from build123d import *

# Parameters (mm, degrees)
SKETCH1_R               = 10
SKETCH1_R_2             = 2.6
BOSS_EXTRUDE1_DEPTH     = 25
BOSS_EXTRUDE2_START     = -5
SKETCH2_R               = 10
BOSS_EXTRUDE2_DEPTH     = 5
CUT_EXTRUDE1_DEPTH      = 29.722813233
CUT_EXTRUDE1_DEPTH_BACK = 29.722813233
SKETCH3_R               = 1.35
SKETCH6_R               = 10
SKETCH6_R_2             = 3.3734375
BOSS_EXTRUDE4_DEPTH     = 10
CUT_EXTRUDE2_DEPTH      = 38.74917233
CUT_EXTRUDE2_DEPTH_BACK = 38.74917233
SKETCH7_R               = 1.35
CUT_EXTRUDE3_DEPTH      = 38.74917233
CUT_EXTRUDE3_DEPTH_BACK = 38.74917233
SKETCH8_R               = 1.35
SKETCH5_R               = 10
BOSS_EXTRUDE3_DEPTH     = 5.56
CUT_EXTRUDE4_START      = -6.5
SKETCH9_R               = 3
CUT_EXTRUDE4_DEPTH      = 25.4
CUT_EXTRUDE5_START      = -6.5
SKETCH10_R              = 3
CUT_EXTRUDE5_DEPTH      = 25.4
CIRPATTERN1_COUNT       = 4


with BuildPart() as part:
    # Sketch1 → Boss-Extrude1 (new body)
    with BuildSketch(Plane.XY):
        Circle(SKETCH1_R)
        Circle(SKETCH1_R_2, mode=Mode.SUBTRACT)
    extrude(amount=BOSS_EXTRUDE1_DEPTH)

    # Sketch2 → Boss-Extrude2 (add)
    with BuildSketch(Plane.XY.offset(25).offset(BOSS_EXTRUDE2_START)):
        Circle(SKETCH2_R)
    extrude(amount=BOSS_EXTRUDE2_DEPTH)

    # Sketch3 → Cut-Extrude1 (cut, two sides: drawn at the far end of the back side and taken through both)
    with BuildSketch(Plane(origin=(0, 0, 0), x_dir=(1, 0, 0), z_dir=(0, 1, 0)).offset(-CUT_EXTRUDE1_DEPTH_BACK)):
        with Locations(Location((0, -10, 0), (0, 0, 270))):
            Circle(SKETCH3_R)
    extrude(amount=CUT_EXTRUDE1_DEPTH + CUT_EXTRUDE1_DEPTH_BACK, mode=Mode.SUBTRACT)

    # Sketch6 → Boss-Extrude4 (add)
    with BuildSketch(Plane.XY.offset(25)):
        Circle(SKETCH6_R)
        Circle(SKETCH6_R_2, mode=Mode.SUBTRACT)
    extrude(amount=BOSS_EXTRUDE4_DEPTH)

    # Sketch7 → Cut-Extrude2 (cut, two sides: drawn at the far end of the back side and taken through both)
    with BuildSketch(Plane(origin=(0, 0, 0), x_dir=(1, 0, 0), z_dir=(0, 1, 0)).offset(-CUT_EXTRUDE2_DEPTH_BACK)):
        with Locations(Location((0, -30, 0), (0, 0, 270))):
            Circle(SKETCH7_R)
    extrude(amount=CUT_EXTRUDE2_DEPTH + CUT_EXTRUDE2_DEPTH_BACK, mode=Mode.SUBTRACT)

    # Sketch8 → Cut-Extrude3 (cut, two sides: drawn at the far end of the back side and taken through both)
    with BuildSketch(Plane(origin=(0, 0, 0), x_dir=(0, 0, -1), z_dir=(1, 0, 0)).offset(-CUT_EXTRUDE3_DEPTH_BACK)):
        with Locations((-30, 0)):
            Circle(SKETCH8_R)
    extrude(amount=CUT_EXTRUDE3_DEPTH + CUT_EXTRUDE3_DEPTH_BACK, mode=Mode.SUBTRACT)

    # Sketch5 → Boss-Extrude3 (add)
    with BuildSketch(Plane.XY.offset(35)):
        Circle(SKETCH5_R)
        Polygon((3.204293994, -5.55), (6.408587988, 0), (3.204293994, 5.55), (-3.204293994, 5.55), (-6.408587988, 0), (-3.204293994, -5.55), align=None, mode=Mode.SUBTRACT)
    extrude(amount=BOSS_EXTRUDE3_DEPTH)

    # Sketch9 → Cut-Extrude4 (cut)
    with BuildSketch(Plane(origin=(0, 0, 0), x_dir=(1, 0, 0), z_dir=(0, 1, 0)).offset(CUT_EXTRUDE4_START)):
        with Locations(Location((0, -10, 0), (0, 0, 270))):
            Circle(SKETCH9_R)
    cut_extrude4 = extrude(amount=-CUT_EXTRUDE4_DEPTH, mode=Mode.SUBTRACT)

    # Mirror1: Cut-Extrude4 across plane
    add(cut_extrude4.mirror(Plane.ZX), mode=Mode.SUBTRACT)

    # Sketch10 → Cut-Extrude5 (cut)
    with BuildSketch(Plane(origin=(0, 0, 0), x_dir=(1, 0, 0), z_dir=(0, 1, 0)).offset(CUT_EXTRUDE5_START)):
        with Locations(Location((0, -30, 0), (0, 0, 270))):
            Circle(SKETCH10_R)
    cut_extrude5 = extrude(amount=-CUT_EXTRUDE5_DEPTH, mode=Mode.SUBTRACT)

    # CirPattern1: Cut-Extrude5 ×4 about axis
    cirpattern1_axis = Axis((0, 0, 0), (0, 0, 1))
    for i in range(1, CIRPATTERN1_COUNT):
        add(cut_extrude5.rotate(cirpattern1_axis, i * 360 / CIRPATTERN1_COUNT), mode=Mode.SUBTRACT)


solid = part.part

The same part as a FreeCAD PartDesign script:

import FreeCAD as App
import Part
import Sketcher
Q = App.Units.Quantity


def add_polygon(sketch, points):
    """Adds a closed chain of lines whose ends are joined by coincident constraints."""
    first, n = sketch.GeometryCount, len(points)
    for a, b in zip(points, points[1:] + points[:1]):
        sketch.addGeometry(Part.LineSegment(App.Vector(*a, 0), App.Vector(*b, 0)), False)
    for i in range(n):
        sketch.addConstraint(Sketcher.Constraint("Coincident", first + i, 2, first + (i + 1) % n, 1))

doc = App.newDocument("Part")
body = doc.addObject("PartDesign::Body", "Body")

sketch1 = body.newObject("Sketcher::SketchObject", "Sketch")
sketch1.AttachmentSupport = (doc.getObject("XY_Plane"), [""])
sketch1.MapMode = "FlatFace"
sketch1.addGeometry([
    Part.Circle(App.Vector(0, 0, 0), App.Vector(0, 0, 1), 10),
    Part.Circle(App.Vector(0, 0, 0), App.Vector(0, 0, 1), 2.6),
], False)
sketch1.addConstraint([
    Sketcher.Constraint("Coincident", 0, 3, -1, 1),
    Sketcher.Constraint("Coincident", 1, 3, -1, 1),
    Sketcher.Constraint("Diameter", 0, Q("20 mm")),
    Sketcher.Constraint("Diameter", 1, Q("5.2 mm")),
])
pad1 = body.newObject("PartDesign::Pad", "Pad")
pad1.Profile = sketch1
pad1.Length = 25

sketch2 = body.newObject("Sketcher::SketchObject", "Sketch001")
sketch2.AttachmentSupport = (doc.getObject("XY_Plane"), [""])
sketch2.MapMode = "FlatFace"
sketch2.AttachmentOffset = App.Placement(App.Vector(0, 0, 20), App.Rotation())
sketch2.addGeometry(Part.Circle(App.Vector(0, 0, 0), App.Vector(0, 0, 1), 10), False)
sketch2.addConstraint([
    Sketcher.Constraint("Coincident", 0, 3, -1, 1),
    Sketcher.Constraint("Diameter", 0, Q("20 mm")),
])
pad2 = body.newObject("PartDesign::Pad", "Pad001")
pad2.Profile = sketch2
pad2.Length = 5

sketch3 = body.newObject("Sketcher::SketchObject", "Sketch002")
sketch3.AttachmentSupport = (doc.getObject("XZ_Plane"), [""])
sketch3.MapMode = "FlatFace"
sketch3.addGeometry(Part.Circle(App.Vector(0, 10, 0), App.Vector(0, 0, 1), 1.4), False)
sketch3.addConstraint([
    Sketcher.Constraint("PointOnObject", 0, 3, -2),
    Sketcher.Constraint("Diameter", 0, Q("2.7 mm")),
    Sketcher.Constraint("DistanceY", -1, 1, 0, 3, Q("10 mm")),
])
pocket1 = body.newObject("PartDesign::Pocket", "Pocket")
pocket1.Profile = sketch3
pocket1.Type = "ThroughAll"
pocket1.Midplane = True

sketch4 = body.newObject("Sketcher::SketchObject", "Sketch003")
sketch4.AttachmentSupport = (doc.getObject("XY_Plane"), [""])
sketch4.MapMode = "FlatFace"
sketch4.AttachmentOffset = App.Placement(App.Vector(0, 0, 25), App.Rotation())
sketch4.addGeometry([
    Part.Circle(App.Vector(0, 0, 0), App.Vector(0, 0, 1), 10),
    Part.Circle(App.Vector(0, 0, 0), App.Vector(0, 0, 1), 3.4),
], False)
sketch4.addConstraint([
    Sketcher.Constraint("Coincident", 0, 3, -1, 1),
    Sketcher.Constraint("Coincident", 1, 3, -1, 1),
    Sketcher.Constraint("Diameter", 0, Q("20 mm")),
    Sketcher.Constraint("Diameter", 1, Q("6.746875 mm")),
])
pad3 = body.newObject("PartDesign::Pad", "Pad002")
pad3.Profile = sketch4
pad3.Length = 10

sketch5 = body.newObject("Sketcher::SketchObject", "Sketch004")
sketch5.AttachmentSupport = (doc.getObject("XZ_Plane"), [""])
sketch5.MapMode = "FlatFace"
sketch5.addGeometry(Part.Circle(App.Vector(0, 30, 0), App.Vector(0, 0, 1), 1.4), False)
sketch5.addConstraint([
    Sketcher.Constraint("PointOnObject", 0, 3, -2),
    Sketcher.Constraint("Diameter", 0, Q("2.7 mm")),
    Sketcher.Constraint("DistanceY", -1, 1, 0, 3, Q("30 mm")),
])
pocket2 = body.newObject("PartDesign::Pocket", "Pocket001")
pocket2.Profile = sketch5
pocket2.Type = "ThroughAll"
pocket2.Midplane = True

sketch6 = body.newObject("Sketcher::SketchObject", "Sketch005")
sketch6.AttachmentSupport = (doc.getObject("YZ_Plane"), [""])
sketch6.MapMode = "FlatFace"
sketch6.addGeometry(Part.Circle(App.Vector(0, 30, 0), App.Vector(0, 0, 1), 1.4), False)
sketch6.addConstraint([
    Sketcher.Constraint("PointOnObject", 0, 3, -2),
    Sketcher.Constraint("Diameter", 0, Q("2.7 mm")),
    Sketcher.Constraint("DistanceY", -1, 1, 0, 3, Q("30 mm")),
])
pocket3 = body.newObject("PartDesign::Pocket", "Pocket002")
pocket3.Profile = sketch6
pocket3.Type = "ThroughAll"
pocket3.Midplane = True

sketch7 = body.newObject("Sketcher::SketchObject", "Sketch006")
sketch7.AttachmentSupport = (doc.getObject("XY_Plane"), [""])
sketch7.MapMode = "FlatFace"
sketch7.AttachmentOffset = App.Placement(App.Vector(0, 0, 35), App.Rotation())
sketch7.addGeometry(Part.Circle(App.Vector(0, 0, 0), App.Vector(0, 0, 1), 10), False)
add_polygon(sketch7, [(6, 0), (3, -6), (-3, -6), (-6, 0), (-3, 6), (3, 6)])
sketch7.addConstraint([
    Sketcher.Constraint("Horizontal", 2),
    Sketcher.Constraint("Horizontal", 5),
    Sketcher.Constraint("Coincident", 0, 3, -1, 1),
    Sketcher.Constraint("Symmetric", 1, 2, 4, 2, -1, 1),
    Sketcher.Constraint("Symmetric", 3, 2, 6, 2, -1, 1),
    Sketcher.Constraint("PointOnObject", 3, 2, -1),
    Sketcher.Constraint("Parallel", 3, 6),
    Sketcher.Constraint("Vertical", 2, 2, 4, 2),
    Sketcher.Constraint("Diameter", 0, Q("20 mm")),
    Sketcher.Constraint("Angle", 1, Q("-120 deg")),
    Sketcher.Constraint("DistanceY", 2, 2, 4, 2, Q("11.1 mm")),
    Sketcher.Constraint("DistanceX", 2, 2, 2, 1, Q("6.408588 mm")),
])
pad4 = body.newObject("PartDesign::Pad", "Pad003")
pad4.Profile = sketch7
pad4.Length = 5.56

sketch8 = body.newObject("Sketcher::SketchObject", "Sketch007")
sketch8.AttachmentSupport = (doc.getObject("XZ_Plane"), [""])
sketch8.MapMode = "FlatFace"
sketch8.AttachmentOffset = App.Placement(App.Vector(0, 0, 6.5), App.Rotation())
sketch8.addGeometry(Part.Circle(App.Vector(0, 10, 0), App.Vector(0, 0, 1), 3), False)
sketch8.addConstraint([
    Sketcher.Constraint("PointOnObject", 0, 3, -2),
    Sketcher.Constraint("Diameter", 0, Q("6 mm")),
    Sketcher.Constraint("DistanceY", -1, 1, 0, 3, Q("10 mm")),
])
pocket4 = body.newObject("PartDesign::Pocket", "Pocket003")
pocket4.Profile = sketch8
pocket4.Length = 25.4
pocket4.Reversed = True
doc.recompute()

mirrored = body.newObject("PartDesign::Mirrored", "Mirrored")
mirrored.Originals = [pocket4]
mirrored.MirrorPlane = (doc.getObject("XZ_Plane"), [""])
body.Tip = mirrored

sketch9 = body.newObject("Sketcher::SketchObject", "Sketch008")
sketch9.AttachmentSupport = (doc.getObject("XZ_Plane"), [""])
sketch9.MapMode = "FlatFace"
sketch9.AttachmentOffset = App.Placement(App.Vector(0, 0, 6.5), App.Rotation())
sketch9.addGeometry(Part.Circle(App.Vector(0, 30, 0), App.Vector(0, 0, 1), 3), False)
sketch9.addConstraint([
    Sketcher.Constraint("PointOnObject", 0, 3, -2),
    Sketcher.Constraint("Diameter", 0, Q("6 mm")),
    Sketcher.Constraint("DistanceY", -1, 1, 0, 3, Q("30 mm")),
])
pocket5 = body.newObject("PartDesign::Pocket", "Pocket004")
pocket5.Profile = sketch9
pocket5.Length = 25.4
pocket5.Reversed = True
doc.recompute()

polarpattern = body.newObject("PartDesign::PolarPattern", "PolarPattern")
polarpattern.Originals = [pocket5]
polarpattern.Axis = (doc.getObject("Z_Axis"), [""])
polarpattern.Angle = 360
polarpattern.Occurrences = 4
body.Tip = polarpattern

doc.recompute()
